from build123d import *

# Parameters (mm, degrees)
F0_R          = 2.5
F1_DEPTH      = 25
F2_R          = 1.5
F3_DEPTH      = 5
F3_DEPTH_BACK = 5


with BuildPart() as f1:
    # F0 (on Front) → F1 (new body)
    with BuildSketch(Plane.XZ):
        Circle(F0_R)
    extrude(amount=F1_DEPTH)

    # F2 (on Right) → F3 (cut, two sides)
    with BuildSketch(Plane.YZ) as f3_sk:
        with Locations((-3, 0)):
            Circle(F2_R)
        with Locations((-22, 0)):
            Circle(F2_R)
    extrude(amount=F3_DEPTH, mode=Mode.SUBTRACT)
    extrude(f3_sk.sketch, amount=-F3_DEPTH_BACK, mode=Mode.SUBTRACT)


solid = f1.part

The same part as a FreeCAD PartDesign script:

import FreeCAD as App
import Part
import Sketcher
from FreeCAD import Vector

doc = App.newDocument("Part")
body = doc.addObject("PartDesign::Body", "Body")

# Sketch on XZ plane
sketch1 = body.newObject("Sketcher::SketchObject", "Sketch")
sketch1.AttachmentSupport = (doc.getObject("XZ_Plane"), [""])
sketch1.MapMode = "FlatFace"
sketch1.addGeometry(Part.Circle(Vector(0, 0, 0), Vector(0, 0, 1), 2.5), False)
sketch1.addConstraint(Sketcher.Constraint("Coincident", 0, 3, -1, 1))
sketch1.addConstraint(Sketcher.Constraint("Diameter", 0, 5.0))
pad1 = body.newObject("PartDesign::Pad", "Pad")
pad1.Profile = sketch1
pad1.Length = 25

# Sketch on YZ plane
sketch2 = body.newObject("Sketcher::SketchObject", "Sketch001")
sketch2.AttachmentSupport = (doc.getObject("YZ_Plane"), [""])
sketch2.MapMode = "FlatFace"
sketch2.addGeometry(Part.Circle(Vector(-3, 0, 0), Vector(0, 0, 1), 1.5), False)
sketch2.addGeometry(Part.Circle(Vector(-22, 0, 0), Vector(0, 0, 1), 1.5), False)
sketch2.addConstraint(Sketcher.Constraint("Equal", 0, 1))
sketch2.addConstraint(Sketcher.Constraint("PointOnObject", 0, 3, -1))
sketch2.addConstraint(Sketcher.Constraint("PointOnObject", 1, 3, -1))
sketch2.addConstraint(Sketcher.Constraint("Diameter", 0, 3.0))
sketch2.addConstraint(Sketcher.Constraint("DistanceX", 0, 3, -1, 1, 3.0))
sketch2.addConstraint(Sketcher.Constraint("DistanceX", 1, 3, -1, 1, 22.0))
pocket1 = body.newObject("PartDesign::Pocket", "Pocket")
pocket1.Profile = sketch2
pocket1.Type = "ThroughAll"
pocket1.Midplane = True

doc.recompute()
